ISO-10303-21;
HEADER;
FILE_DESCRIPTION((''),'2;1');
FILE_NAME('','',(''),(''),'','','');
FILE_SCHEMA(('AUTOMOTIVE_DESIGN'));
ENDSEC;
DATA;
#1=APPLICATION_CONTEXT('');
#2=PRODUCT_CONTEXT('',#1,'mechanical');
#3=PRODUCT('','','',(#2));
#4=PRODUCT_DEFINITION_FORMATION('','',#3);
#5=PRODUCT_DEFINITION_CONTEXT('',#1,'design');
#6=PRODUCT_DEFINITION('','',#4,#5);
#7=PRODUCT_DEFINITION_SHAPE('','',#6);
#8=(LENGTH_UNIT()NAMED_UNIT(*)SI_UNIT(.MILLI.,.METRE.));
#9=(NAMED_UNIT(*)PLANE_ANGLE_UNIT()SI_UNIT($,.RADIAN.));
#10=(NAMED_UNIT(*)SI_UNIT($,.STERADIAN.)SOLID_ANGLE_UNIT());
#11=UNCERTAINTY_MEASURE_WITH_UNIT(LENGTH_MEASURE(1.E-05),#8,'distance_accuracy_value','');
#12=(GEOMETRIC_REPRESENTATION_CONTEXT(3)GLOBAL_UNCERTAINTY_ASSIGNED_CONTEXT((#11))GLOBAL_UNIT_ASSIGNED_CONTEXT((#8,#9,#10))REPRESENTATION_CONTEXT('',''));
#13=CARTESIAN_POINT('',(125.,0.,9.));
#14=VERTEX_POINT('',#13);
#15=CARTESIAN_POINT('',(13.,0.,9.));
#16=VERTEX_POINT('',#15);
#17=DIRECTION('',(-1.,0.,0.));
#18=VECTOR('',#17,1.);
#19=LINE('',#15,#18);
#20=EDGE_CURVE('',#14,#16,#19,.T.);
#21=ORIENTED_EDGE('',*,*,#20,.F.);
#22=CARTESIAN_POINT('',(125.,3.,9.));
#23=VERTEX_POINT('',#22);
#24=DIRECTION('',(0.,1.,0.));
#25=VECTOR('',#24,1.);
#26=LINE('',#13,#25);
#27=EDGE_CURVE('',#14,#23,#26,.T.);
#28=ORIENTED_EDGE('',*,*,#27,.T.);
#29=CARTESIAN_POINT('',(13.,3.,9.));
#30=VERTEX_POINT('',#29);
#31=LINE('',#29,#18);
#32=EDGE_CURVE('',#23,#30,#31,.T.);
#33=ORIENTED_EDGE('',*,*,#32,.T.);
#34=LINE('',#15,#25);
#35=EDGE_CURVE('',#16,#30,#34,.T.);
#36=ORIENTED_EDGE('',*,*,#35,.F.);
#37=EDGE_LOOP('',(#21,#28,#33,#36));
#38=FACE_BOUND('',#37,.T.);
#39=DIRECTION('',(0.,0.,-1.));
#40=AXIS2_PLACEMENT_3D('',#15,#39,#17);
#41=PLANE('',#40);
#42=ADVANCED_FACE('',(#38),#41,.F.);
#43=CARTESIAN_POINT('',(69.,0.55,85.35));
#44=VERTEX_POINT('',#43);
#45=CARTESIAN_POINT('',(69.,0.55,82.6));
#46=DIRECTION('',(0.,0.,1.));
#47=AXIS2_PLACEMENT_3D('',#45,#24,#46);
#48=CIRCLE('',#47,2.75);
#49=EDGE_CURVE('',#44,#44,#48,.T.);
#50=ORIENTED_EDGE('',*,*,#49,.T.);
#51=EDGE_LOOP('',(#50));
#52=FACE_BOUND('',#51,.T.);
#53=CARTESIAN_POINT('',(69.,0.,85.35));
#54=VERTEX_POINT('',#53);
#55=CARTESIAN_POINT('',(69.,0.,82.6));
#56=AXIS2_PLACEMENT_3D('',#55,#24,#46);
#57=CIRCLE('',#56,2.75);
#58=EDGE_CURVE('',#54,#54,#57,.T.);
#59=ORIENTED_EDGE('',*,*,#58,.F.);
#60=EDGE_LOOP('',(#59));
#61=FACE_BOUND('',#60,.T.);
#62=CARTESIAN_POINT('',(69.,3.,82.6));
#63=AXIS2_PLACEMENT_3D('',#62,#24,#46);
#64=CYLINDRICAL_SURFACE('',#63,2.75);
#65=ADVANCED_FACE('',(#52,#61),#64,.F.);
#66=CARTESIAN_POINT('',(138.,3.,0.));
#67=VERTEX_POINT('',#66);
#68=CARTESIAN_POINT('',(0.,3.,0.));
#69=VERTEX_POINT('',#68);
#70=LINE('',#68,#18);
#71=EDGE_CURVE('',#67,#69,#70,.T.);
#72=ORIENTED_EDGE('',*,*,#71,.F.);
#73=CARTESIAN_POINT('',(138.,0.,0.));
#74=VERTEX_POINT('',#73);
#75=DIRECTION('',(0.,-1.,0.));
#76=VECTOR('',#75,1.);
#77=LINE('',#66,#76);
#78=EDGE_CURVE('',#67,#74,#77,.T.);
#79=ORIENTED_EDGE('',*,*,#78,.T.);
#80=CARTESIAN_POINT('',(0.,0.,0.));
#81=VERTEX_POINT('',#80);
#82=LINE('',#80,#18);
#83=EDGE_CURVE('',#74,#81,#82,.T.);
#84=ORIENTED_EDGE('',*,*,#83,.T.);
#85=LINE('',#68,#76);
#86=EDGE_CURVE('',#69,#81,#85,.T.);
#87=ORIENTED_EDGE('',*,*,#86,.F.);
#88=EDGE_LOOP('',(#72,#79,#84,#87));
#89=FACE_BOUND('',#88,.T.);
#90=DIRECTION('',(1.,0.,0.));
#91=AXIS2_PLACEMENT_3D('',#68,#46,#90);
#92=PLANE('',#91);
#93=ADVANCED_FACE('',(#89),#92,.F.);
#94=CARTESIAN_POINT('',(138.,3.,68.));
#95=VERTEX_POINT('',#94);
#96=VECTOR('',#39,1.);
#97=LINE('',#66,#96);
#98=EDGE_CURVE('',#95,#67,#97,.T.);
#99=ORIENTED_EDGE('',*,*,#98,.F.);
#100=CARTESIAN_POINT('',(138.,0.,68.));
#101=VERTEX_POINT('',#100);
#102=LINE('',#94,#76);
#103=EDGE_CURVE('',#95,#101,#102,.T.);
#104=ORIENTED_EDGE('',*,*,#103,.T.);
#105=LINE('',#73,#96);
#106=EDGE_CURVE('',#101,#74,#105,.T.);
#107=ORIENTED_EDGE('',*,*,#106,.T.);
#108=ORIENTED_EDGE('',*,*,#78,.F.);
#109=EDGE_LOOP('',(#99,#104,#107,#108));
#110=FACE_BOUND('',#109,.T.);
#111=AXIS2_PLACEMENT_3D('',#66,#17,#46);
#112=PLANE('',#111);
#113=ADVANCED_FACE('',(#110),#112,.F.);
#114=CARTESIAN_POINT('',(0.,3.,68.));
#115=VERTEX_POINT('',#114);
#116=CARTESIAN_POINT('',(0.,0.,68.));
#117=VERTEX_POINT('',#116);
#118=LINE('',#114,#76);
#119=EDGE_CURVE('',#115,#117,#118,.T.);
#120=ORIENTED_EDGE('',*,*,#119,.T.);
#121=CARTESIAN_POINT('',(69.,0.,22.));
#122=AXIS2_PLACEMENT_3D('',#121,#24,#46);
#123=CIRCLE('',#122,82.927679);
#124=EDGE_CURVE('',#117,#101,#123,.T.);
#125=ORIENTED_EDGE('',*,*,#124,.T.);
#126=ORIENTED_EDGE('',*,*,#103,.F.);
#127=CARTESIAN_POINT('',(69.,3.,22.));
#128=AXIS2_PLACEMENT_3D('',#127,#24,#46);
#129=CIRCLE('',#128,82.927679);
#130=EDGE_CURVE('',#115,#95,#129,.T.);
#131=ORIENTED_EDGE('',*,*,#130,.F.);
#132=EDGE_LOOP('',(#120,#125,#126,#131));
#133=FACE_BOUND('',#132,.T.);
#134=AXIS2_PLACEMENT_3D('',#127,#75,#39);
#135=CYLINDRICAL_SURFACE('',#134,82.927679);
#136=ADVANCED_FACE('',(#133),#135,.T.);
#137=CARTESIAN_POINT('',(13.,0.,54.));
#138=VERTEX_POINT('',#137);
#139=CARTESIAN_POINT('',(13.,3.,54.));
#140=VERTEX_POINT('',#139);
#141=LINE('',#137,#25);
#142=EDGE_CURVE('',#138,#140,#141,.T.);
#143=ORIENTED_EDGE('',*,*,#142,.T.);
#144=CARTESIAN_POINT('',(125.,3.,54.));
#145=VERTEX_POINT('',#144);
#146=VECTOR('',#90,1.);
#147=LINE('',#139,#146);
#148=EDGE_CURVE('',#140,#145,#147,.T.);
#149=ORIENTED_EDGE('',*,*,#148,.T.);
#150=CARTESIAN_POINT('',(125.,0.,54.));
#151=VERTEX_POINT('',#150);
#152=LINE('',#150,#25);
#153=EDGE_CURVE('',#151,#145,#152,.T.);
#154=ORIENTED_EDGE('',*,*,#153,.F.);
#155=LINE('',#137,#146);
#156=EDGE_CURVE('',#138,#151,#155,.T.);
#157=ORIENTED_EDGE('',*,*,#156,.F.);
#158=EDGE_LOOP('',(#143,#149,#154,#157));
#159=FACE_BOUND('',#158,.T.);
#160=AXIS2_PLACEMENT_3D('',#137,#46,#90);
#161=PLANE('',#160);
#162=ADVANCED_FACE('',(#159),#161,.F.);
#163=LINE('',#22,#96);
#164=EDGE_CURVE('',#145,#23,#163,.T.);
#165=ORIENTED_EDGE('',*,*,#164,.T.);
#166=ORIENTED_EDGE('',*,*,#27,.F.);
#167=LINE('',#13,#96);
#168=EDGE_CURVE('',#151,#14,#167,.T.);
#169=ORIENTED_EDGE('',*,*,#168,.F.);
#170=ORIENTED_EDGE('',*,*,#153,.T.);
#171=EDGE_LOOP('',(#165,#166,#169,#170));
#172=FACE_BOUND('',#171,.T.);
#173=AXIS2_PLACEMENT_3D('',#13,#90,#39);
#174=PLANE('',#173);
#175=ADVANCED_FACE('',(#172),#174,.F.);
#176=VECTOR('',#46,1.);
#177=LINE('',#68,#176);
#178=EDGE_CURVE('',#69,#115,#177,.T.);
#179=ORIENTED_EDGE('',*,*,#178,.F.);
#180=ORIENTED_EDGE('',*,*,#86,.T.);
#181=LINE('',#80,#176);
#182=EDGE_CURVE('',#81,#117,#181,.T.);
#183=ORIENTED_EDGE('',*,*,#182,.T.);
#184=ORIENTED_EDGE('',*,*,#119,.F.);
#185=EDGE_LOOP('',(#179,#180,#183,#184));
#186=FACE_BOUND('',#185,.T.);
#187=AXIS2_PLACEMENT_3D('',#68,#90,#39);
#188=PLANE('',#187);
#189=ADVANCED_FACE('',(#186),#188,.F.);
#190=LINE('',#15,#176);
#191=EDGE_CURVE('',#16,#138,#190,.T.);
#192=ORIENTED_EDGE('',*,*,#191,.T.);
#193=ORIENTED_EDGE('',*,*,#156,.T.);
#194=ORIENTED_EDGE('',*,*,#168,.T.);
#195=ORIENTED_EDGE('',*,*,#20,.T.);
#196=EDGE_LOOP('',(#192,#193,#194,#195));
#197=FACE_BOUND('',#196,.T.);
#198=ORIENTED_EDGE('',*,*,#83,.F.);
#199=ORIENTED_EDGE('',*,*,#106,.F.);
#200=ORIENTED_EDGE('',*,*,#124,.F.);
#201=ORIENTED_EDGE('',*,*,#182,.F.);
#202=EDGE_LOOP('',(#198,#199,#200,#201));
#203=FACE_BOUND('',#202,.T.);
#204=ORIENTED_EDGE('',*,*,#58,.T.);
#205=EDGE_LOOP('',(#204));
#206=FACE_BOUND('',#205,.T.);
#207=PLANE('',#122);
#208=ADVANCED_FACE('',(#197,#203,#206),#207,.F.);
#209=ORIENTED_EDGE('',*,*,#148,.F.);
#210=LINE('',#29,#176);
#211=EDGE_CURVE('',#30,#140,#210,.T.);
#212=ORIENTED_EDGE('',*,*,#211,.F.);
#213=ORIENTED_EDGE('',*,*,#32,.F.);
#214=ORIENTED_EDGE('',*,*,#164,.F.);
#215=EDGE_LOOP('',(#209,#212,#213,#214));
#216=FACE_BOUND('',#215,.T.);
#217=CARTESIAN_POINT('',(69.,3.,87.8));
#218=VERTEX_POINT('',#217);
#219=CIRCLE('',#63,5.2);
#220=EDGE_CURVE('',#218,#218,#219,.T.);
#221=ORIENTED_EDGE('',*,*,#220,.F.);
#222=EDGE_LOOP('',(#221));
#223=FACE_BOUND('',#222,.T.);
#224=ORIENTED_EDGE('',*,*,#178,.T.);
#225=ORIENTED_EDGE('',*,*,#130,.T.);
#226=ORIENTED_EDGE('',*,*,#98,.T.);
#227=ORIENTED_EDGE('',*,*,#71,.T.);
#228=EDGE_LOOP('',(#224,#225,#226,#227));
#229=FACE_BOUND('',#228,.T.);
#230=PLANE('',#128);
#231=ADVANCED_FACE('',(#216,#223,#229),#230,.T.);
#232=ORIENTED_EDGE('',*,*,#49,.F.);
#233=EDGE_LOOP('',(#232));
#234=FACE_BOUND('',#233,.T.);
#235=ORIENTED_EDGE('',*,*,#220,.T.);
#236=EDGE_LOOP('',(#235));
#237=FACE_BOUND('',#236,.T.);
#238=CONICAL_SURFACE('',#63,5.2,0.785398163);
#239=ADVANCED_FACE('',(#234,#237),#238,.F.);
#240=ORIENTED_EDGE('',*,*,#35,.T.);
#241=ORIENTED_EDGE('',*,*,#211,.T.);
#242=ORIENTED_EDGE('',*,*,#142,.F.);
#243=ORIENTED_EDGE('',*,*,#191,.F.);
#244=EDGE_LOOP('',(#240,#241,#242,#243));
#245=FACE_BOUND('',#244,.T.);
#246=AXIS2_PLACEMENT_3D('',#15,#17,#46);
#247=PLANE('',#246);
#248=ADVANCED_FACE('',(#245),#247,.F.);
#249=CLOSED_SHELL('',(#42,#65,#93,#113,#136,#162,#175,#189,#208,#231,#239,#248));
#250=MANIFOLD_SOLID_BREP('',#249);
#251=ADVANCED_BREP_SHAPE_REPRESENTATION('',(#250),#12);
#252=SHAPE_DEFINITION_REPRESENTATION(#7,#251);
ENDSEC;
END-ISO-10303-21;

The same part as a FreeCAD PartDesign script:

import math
import FreeCAD as App
import Part
import Sketcher
Q = App.Units.Quantity

doc = App.newDocument("Part")
body = doc.addObject("PartDesign::Body", "Body")

# Sketch on XZ plane
sketch1 = body.newObject("Sketcher::SketchObject", "Sketch")
sketch1.AttachmentSupport = (doc.getObject("XZ_Plane"), [""])
sketch1.MapMode = "FlatFace"
sketch1.addGeometry([
    Part.LineSegment(App.Vector(138, 0, 0), App.Vector(0, 0, 0)),
    Part.LineSegment(App.Vector(0, 0, 0), App.Vector(0, 68, 0)),
    Part.ArcOfCircle(Part.Circle(App.Vector(69, 22, 0), App.Vector(0, 0, 1), 83), math.radians(34), math.radians(146)),
    Part.LineSegment(App.Vector(138, 68, 0), App.Vector(138, 0, 0)),
], False)
sketch1.addConstraint([
    Sketcher.Constraint("Coincident", 0, 2, 1, 1),
    Sketcher.Constraint("Coincident", 1, 2, 2, 2),
    Sketcher.Constraint("Coincident", 2, 1, 3, 1),
    Sketcher.Constraint("Coincident", 3, 2, 0, 1),
    Sketcher.Constraint("Horizontal", 0),
    Sketcher.Constraint("Vertical", 1),
    Sketcher.Constraint("Vertical", 3),
    Sketcher.Constraint("Coincident", 0, 2, -1, 1),
    Sketcher.Constraint("Horizontal", 1, 2, 2, 1),
    Sketcher.Constraint("DistanceX", 0, 2, 0, 1, Q("138 mm")),
    Sketcher.Constraint("DistanceY", 1, 1, 1, 2, Q("68 mm")),
    Sketcher.Constraint("DistanceY", -1, 1, 2, 3, Q("22 mm")),
])
pad1 = body.newObject("PartDesign::Pad", "Pad")
pad1.Profile = sketch1
pad1.Length = 3
pad1.Reversed = True

# Sketch on XZ plane
sketch2 = body.newObject("Sketcher::SketchObject", "Sketch001")
sketch2.AttachmentSupport = (doc.getObject("XZ_Plane"), [""])
sketch2.MapMode = "FlatFace"
sketch2.AttachmentOffset = App.Placement(App.Vector(0, 0, -3), App.Rotation())
sketch2.addGeometry([
    Part.LineSegment(App.Vector(13, 9, 0), App.Vector(13, 54, 0)),
    Part.LineSegment(App.Vector(13, 54, 0), App.Vector(125, 54, 0)),
    Part.LineSegment(App.Vector(125, 54, 0), App.Vector(125, 9, 0)),
    Part.LineSegment(App.Vector(125, 9, 0), App.Vector(13, 9, 0)),
], False)
sketch2.addConstraint([
    Sketcher.Constraint("Coincident", 0, 2, 1, 1),
    Sketcher.Constraint("Coincident", 1, 2, 2, 1),
    Sketcher.Constraint("Coincident", 2, 2, 3, 1),
    Sketcher.Constraint("Coincident", 3, 2, 0, 1),
    Sketcher.Constraint("Vertical", 0),
    Sketcher.Constraint("Horizontal", 1),
    Sketcher.Constraint("Vertical", 2),
    Sketcher.Constraint("Horizontal", 3),
    Sketcher.Constraint("DistanceX", 1, 1, 1, 2, Q("112 mm")),
    Sketcher.Constraint("DistanceY", 0, 1, 0, 2, Q("45 mm")),
    Sketcher.Constraint("DistanceX", -1, 1, 0, 2, Q("13 mm")),
    Sketcher.Constraint("DistanceY", -1, 1, 0, 2, Q("54 mm")),
])
pocket1 = body.newObject("PartDesign::Pocket", "Pocket")
pocket1.Profile = sketch2
pocket1.Type = "ThroughAll"
pocket1.Reversed = True

# Sketch on YZ plane
sketch3 = body.newObject("Sketcher::SketchObject", "Sketch002")
sketch3.AttachmentSupport = (doc.getObject("YZ_Plane"), [""])
sketch3.MapMode = "FlatFace"
sketch3.AttachmentOffset = App.Placement(App.Vector(0, 0, 69), App.Rotation())
sketch3.addGeometry([
    Part.LineSegment(App.Vector(0, 82.6, 0), App.Vector(3, 82.6, 0)),  # 0
    Part.LineSegment(App.Vector(3, 82.6, 0), App.Vector(3, 87.8, 0)),  # 1
    Part.LineSegment(App.Vector(3, 87.8, 0), App.Vector(0.6, 85.3, 0)),  # 2
    Part.LineSegment(App.Vector(0.6, 85.3, 0), App.Vector(0, 85.3, 0)),  # 3
    Part.LineSegment(App.Vector(0, 85.3, 0), App.Vector(0, 82.6, 0)),  # 4
], False)
sketch3.addGeometry(Part.LineSegment(App.Vector(3, 82.6, 0), App.Vector(0, 82.6, 0)), True)  # axis
sketch3.addConstraint([
    Sketcher.Constraint("Coincident", 0, 2, 1, 1),
    Sketcher.Constraint("Coincident", 1, 2, 2, 1),
    Sketcher.Constraint("Coincident", 2, 2, 3, 1),
    Sketcher.Constraint("Coincident", 3, 2, 4, 1),
    Sketcher.Constraint("Coincident", 4, 2, 0, 1),
    Sketcher.Constraint("Horizontal", 0),
    Sketcher.Constraint("Vertical", 1),
    Sketcher.Constraint("Horizontal", 3),
    Sketcher.Constraint("Vertical", 4),
    Sketcher.Constraint("Horizontal", 5),
    Sketcher.Constraint("Coincident", 5, 1, 0, 2),
    Sketcher.Constraint("PointOnObject", 3, 2, -2),
    Sketcher.Constraint("PointOnObject", 5, 2, -2),
    Sketcher.Constraint("DistanceX", 0, 1, 0, 2, Q("3 mm")),
    Sketcher.Constraint("Angle", 2, Q("-135 deg")),
    Sketcher.Constraint("DistanceY", 1, 1, 1, 2, Q("5.2 mm")),
    Sketcher.Constraint("DistanceX", 3, 2, 3, 1, Q("0.55 mm")),
    Sketcher.Constraint("DistanceY", -1, 1, 0, 2, Q("82.6 mm")),
])
groove = body.newObject("PartDesign::Groove", "Groove")
groove.Profile = sketch3
groove.ReferenceAxis = (sketch3, ["Axis0"])
groove.Angle = 360

doc.recompute()
